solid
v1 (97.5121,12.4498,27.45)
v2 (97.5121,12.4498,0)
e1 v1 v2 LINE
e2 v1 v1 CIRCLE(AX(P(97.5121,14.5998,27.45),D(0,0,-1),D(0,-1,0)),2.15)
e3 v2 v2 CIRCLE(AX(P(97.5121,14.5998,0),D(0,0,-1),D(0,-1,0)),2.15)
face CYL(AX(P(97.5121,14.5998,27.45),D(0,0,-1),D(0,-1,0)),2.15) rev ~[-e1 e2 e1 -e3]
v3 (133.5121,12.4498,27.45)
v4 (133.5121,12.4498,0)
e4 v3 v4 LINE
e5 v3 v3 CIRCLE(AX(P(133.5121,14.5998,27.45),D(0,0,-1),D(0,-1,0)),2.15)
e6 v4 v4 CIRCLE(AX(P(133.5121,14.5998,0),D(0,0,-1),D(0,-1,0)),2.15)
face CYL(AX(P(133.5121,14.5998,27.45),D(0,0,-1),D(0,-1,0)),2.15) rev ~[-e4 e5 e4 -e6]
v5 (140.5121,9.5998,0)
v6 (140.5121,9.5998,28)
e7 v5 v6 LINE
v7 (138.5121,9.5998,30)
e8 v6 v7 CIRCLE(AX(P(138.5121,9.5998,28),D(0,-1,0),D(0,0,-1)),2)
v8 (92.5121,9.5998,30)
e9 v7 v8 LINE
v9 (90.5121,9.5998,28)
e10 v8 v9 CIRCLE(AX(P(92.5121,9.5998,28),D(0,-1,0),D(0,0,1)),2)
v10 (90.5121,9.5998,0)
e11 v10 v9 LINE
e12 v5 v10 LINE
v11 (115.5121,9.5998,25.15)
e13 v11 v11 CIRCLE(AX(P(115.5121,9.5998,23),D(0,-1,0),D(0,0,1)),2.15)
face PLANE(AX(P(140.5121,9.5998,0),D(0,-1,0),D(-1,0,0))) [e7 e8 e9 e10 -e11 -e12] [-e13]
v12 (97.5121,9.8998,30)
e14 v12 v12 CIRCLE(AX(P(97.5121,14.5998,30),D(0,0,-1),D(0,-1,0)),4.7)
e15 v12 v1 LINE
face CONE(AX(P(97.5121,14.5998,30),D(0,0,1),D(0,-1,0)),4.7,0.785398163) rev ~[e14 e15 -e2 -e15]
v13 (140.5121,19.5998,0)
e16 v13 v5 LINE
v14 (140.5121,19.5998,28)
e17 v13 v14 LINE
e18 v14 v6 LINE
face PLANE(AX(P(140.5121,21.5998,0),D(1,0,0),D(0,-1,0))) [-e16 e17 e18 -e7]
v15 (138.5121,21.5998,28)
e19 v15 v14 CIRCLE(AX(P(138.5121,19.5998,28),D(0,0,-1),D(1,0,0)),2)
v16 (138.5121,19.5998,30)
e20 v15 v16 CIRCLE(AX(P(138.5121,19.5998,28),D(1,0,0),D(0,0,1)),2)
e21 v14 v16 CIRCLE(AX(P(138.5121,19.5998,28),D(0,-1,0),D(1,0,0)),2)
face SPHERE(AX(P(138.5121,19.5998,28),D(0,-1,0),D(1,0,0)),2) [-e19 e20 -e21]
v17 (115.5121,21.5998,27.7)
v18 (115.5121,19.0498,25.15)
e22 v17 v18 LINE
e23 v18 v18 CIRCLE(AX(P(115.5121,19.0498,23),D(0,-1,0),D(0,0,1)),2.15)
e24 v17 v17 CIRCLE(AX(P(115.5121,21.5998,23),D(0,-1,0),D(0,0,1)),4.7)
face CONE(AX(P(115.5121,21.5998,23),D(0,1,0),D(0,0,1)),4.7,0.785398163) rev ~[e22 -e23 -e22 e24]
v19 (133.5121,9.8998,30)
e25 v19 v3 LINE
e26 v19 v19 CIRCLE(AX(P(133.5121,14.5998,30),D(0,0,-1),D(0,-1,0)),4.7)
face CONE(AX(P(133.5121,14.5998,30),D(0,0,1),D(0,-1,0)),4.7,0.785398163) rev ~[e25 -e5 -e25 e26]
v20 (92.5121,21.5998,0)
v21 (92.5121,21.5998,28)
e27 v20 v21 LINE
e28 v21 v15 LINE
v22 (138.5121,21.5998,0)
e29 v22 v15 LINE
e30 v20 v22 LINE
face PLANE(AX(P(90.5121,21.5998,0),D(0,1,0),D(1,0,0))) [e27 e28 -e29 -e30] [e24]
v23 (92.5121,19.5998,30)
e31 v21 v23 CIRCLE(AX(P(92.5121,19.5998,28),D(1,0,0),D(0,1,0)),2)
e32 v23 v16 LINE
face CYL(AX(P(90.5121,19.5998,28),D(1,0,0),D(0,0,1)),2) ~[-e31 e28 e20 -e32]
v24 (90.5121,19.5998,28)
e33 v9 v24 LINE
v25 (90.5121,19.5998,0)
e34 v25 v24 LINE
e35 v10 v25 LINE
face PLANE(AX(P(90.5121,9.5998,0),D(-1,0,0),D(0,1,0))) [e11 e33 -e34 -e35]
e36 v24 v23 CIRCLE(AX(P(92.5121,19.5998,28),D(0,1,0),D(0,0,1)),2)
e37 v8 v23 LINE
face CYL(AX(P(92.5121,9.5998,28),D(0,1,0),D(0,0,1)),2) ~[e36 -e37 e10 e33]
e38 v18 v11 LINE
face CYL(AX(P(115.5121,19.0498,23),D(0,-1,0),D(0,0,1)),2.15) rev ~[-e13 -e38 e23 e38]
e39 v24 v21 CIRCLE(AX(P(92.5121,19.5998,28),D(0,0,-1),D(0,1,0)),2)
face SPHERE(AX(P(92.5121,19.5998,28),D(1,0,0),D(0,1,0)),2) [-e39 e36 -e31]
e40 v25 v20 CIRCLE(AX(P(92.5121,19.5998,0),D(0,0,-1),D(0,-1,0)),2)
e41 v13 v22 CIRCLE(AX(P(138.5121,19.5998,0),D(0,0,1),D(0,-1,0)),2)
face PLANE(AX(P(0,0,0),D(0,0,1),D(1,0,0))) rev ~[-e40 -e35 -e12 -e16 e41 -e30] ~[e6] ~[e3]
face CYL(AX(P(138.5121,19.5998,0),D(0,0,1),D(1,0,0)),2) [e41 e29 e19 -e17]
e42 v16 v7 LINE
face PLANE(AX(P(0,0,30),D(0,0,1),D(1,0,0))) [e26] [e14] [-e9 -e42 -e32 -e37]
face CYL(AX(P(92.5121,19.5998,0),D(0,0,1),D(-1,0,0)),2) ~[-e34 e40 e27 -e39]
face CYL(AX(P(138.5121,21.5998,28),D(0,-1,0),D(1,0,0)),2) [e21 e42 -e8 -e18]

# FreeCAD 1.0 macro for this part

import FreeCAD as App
import Part
import Sketcher


def edges_at(feature, points):
    """Names of the edges that pass closest to the given points."""
    edges = feature.Shape.Edges
    near = lambda p: min(range(len(edges)), key=lambda i: edges[i].distToShape(Part.Vertex(*p))[0])
    return sorted({f"Edge{near(p) + 1}" for p in points})

doc = App.newDocument("Part")
body = doc.addObject("PartDesign::Body", "Body")

# Sketch on XY plane
sketch1 = body.newObject("Sketcher::SketchObject", "Sketch")
sketch1.AttachmentSupport = (doc.getObject("XY_Plane"), [""])
sketch1.MapMode = "FlatFace"
sketch1.addGeometry(Part.LineSegment(App.Vector(91, 10, 0), App.Vector(141, 10, 0)), False)
sketch1.addGeometry(Part.LineSegment(App.Vector(141, 10, 0), App.Vector(141, 22, 0)), False)
sketch1.addGeometry(Part.LineSegment(App.Vector(141, 22, 0), App.Vector(91, 22, 0)), False)
sketch1.addGeometry(Part.LineSegment(App.Vector(91, 22, 0), App.Vector(91, 10, 0)), False)
sketch1.addConstraint(Sketcher.Constraint("Coincident", 0, 2, 1, 1))
sketch1.addConstraint(Sketcher.Constraint("Coincident", 1, 2, 2, 1))
sketch1.addConstraint(Sketcher.Constraint("Coincident", 2, 2, 3, 1))
sketch1.addConstraint(Sketcher.Constraint("Coincident", 3, 2, 0, 1))
sketch1.addConstraint(Sketcher.Constraint("Horizontal", 0))
sketch1.addConstraint(Sketcher.Constraint("Vertical", 1))
sketch1.addConstraint(Sketcher.Constraint("Horizontal", 2))
sketch1.addConstraint(Sketcher.Constraint("Vertical", 3))
sketch1.addConstraint(Sketcher.Constraint("DistanceX", 0, 1, 0, 2, 50.0))
sketch1.addConstraint(Sketcher.Constraint("DistanceY", 1, 1, 1, 2, 12.0))
sketch1.addConstraint(Sketcher.Constraint("DistanceX", -1, 1, 0, 2, 140.512))
sketch1.addConstraint(Sketcher.Constraint("DistanceY", -1, 1, 0, 2, 9.5998))
pad1 = body.newObject("PartDesign::Pad", "Pad")
pad1.Profile = sketch1
pad1.Length = 30

# Sketch on XY plane
sketch2 = body.newObject("Sketcher::SketchObject", "Sketch001")
sketch2.AttachmentSupport = (doc.getObject("XY_Plane"), [""])
sketch2.MapMode = "FlatFace"
sketch2.AttachmentOffset = App.Placement(App.Vector(0, 0, 30), App.Rotation())
sketch2.addGeometry(Part.Circle(App.Vector(133.5, 14.6, 0), App.Vector(0, 0, 1), 2.1), False)
sketch2.addGeometry(Part.Circle(App.Vector(97.5, 14.6, 0), App.Vector(0, 0, 1), 2.1), False)
sketch2.addConstraint(Sketcher.Constraint("Equal", 0, 1))
sketch2.addConstraint(Sketcher.Constraint("Horizontal", 0, 3, 1, 3))
sketch2.addConstraint(Sketcher.Constraint("Diameter", 0, 4.3))
sketch2.addConstraint(Sketcher.Constraint("DistanceX", 1, 3, 0, 3, 36.0))
sketch2.addConstraint(Sketcher.Constraint("DistanceX", -1, 1, 0, 3, 133.512))
sketch2.addConstraint(Sketcher.Constraint("DistanceY", -1, 1, 0, 3, 14.5998))
doc.recompute()
hole = body.newObject("PartDesign::Hole", "Hole")
hole.Profile = sketch2
hole.ThreadType = "None"
hole.Diameter = 4.3
hole.DepthType = "ThroughAll"
hole.HoleCutType = "Countersink"
hole.HoleCutDiameter = 9.4
hole.HoleCutCountersinkAngle = 90

# Sketch on XZ plane
sketch3 = body.newObject("Sketcher::SketchObject", "Sketch002")
sketch3.AttachmentSupport = (doc.getObject("XZ_Plane"), [""])
sketch3.MapMode = "FlatFace"
sketch3.AttachmentOffset = App.Placement(App.Vector(0, 0, -21.5998), App.Rotation())
sketch3.addGeometry(Part.Circle(App.Vector(115.5, 23, 0), App.Vector(0, 0, 1), 2.1), False)
sketch3.addConstraint(Sketcher.Constraint("Diameter", 0, 4.3))
sketch3.addConstraint(Sketcher.Constraint("DistanceY", -1, 1, 0, 3, 23.0))
sketch3.addConstraint(Sketcher.Constraint("DistanceX", -1, 1, 0, 3, 115.512))
doc.recompute()
hole2 = body.newObject("PartDesign::Hole", "Hole001")
hole2.Profile = sketch3
hole2.ThreadType = "None"
hole2.Diameter = 4.3
hole2.DepthType = "ThroughAll"
hole2.HoleCutType = "Countersink"
hole2.HoleCutDiameter = 9.4
hole2.HoleCutCountersinkAngle = 90
hole2.Reversed = True
doc.recompute()

fillet = body.newObject("PartDesign::Fillet", "Fillet")
fillet.Base = (hole2, edges_at(hole2, [
    (140.512, 15.6, 30),
    (140.512, 21.6, 15),
    (115.512, 21.6, 30),
    (90.512, 21.6, 15),
    (90.512, 15.6, 30),
]))
fillet.Radius = 2

doc.recompute()
